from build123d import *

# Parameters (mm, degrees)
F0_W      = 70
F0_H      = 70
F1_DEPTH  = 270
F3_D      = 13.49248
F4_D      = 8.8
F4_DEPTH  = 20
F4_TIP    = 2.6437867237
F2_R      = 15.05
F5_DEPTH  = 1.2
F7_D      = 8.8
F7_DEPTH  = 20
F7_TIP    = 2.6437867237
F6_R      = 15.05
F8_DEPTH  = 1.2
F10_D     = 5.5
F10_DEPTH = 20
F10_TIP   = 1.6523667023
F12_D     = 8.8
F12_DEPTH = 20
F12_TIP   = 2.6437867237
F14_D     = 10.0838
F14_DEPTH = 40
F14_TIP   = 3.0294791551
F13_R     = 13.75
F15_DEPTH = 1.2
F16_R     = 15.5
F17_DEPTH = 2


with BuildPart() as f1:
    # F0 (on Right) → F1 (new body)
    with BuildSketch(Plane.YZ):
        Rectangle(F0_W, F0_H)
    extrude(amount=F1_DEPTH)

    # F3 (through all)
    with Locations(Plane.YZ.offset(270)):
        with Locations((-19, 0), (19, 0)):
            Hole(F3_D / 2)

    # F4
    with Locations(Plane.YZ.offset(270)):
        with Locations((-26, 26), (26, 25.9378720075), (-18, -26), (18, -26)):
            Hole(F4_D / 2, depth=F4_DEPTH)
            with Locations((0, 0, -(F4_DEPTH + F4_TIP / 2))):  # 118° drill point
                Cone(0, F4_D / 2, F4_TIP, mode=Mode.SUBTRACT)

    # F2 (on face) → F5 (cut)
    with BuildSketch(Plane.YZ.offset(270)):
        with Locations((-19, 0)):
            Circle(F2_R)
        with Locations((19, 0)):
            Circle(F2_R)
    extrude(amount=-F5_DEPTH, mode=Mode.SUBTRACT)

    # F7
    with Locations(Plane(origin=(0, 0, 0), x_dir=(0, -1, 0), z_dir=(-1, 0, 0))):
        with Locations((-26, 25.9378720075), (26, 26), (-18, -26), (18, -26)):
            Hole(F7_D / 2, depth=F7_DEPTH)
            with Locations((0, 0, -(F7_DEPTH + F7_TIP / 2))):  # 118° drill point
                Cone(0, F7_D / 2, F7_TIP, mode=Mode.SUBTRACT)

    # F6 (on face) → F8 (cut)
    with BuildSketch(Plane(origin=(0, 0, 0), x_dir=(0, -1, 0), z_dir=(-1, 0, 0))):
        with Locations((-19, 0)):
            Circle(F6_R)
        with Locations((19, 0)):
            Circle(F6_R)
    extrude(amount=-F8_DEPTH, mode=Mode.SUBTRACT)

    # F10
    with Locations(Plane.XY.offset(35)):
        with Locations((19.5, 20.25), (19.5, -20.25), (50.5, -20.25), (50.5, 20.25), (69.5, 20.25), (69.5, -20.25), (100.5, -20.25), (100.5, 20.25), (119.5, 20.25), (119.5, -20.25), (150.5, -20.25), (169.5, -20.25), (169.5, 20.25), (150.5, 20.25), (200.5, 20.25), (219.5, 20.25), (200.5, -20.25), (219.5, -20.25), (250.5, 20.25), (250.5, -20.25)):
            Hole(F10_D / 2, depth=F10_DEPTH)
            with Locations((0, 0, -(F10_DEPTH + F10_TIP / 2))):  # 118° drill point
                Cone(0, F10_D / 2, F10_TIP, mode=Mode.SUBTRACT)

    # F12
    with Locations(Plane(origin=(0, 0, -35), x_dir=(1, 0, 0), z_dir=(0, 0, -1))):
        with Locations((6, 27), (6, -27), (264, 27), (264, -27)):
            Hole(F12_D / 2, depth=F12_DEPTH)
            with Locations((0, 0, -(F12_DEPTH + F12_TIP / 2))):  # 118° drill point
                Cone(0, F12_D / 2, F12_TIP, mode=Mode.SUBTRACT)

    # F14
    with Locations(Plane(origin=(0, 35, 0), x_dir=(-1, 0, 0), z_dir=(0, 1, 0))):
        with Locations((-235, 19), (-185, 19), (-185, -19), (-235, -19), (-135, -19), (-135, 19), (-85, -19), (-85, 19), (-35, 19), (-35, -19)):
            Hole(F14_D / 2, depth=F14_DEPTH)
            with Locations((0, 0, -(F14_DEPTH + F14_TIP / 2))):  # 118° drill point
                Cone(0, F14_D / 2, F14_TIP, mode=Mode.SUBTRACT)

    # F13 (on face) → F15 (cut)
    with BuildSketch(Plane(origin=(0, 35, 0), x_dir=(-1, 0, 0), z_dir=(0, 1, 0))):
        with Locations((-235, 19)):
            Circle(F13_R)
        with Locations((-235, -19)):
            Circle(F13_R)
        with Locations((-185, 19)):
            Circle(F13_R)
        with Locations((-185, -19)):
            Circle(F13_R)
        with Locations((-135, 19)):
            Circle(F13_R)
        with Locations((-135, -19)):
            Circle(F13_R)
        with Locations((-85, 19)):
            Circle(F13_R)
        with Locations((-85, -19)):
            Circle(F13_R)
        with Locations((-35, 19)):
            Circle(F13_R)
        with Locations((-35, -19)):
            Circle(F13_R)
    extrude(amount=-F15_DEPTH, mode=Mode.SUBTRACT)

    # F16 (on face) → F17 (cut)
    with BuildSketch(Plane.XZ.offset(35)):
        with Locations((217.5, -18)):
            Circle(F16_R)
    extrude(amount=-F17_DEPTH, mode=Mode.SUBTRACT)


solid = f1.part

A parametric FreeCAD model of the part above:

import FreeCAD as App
import Part
import Sketcher

V = App.Vector
Q = App.Units.Quantity


def add_polygon(sketch, points):
    """Adds a closed chain of lines whose ends are joined by coincident constraints."""
    first, n = sketch.GeometryCount, len(points)
    for a, b in zip(points, points[1:] + points[:1]):
        sketch.addGeometry(Part.LineSegment(App.Vector(*a, 0), App.Vector(*b, 0)), False)
    for i in range(n):
        sketch.addConstraint(Sketcher.Constraint("Coincident", first + i, 2, first + (i + 1) % n, 1))

doc = App.newDocument("Part")
body = doc.addObject("PartDesign::Body", "Body")

# Sketch on YZ plane
sketch1 = doc.addObject("Sketcher::SketchObject", "Sketch")
body.addObject(sketch1)
sketch1.AttachmentSupport = (doc.YZ_Plane, [""])
sketch1.MapMode = "FlatFace"
add_polygon(sketch1, [(-35, 35), (-35, -35), (35, -35), (35, 35)])  # lines 0-3
sketch1.addConstraint([
    Sketcher.Constraint("Vertical", 0),
    Sketcher.Constraint("Horizontal", 1),
    Sketcher.Constraint("Vertical", 2),
    Sketcher.Constraint("Horizontal", 3),
    Sketcher.Constraint("Symmetric", 0, 2, 2, 2, -1, 1),
    Sketcher.Constraint("Equal", 3, 0),
    Sketcher.Constraint("DistanceX", 1, 1, 1, 2, Q("70 mm")),
])
pad1 = doc.addObject("PartDesign::Pad", "Pad")
body.addObject(pad1)
pad1.Profile = sketch1
pad1.Length = 270

# Sketch on YZ plane
sketch2 = doc.addObject("Sketcher::SketchObject", "Sketch001")
body.addObject(sketch2)
sketch2.AttachmentSupport = (doc.YZ_Plane, [""])
sketch2.MapMode = "FlatFace"
sketch2.AttachmentOffset = App.Placement(V(0, 0, 270), App.Rotation())
sketch2.addGeometry([
    Part.Circle(V(-19, 0, 0), V(0, 0, 1), 6.74624),
    Part.Circle(V(19, 0, 0), V(0, 0, 1), 6.74624),
], False)
sketch2.addConstraint([
    Sketcher.Constraint("Equal", 0, 1),
    Sketcher.Constraint("Symmetric", 0, 3, 1, 3, -1, 1),
    Sketcher.Constraint("PointOnObject", 0, 3, -1),
    Sketcher.Constraint("DistanceX", 0, 3, -1, 1, Q("19 mm")),
    Sketcher.Constraint("Diameter", 0, Q("13.49248 mm")),
])
doc.recompute()
hole = doc.addObject("PartDesign::Hole", "Hole")
body.addObject(hole)
hole.Profile = sketch2
hole.ThreadType = "None"
hole.Diameter = 13.49248
hole.DepthType = "ThroughAll"

# Sketch on YZ plane
sketch3 = doc.addObject("Sketcher::SketchObject", "Sketch002")
body.addObject(sketch3)
sketch3.AttachmentSupport = (doc.YZ_Plane, [""])
sketch3.MapMode = "FlatFace"
sketch3.AttachmentOffset = App.Placement(V(0, 0, 270), App.Rotation())
sketch3.addGeometry([
    Part.Circle(V(-26, 26, 0), V(0, 0, 1), 4.4),
    Part.Circle(V(26, 25.937872, 0), V(0, 0, 1), 4.4),
    Part.Circle(V(-18, -26, 0), V(0, 0, 1), 4.4),
    Part.Circle(V(18, -26, 0), V(0, 0, 1), 4.4),
], False)
sketch3.addConstraint([
    Sketcher.Constraint("Equal", 0, 1),
    Sketcher.Constraint("Equal", 1, 2),
    Sketcher.Constraint("Equal", 2, 3),
    Sketcher.Constraint("Symmetric", 2, 3, 3, 3, -2),
    Sketcher.Constraint("Diameter", 0, Q("8.8 mm")),
    Sketcher.Constraint("DistanceX", 0, 3, -1, 1, Q("26 mm")),
    Sketcher.Constraint("DistanceY", -1, 1, 0, 3, Q("26 mm")),
    Sketcher.Constraint("DistanceX", -1, 1, 1, 3, Q("26 mm")),
    Sketcher.Constraint("DistanceX", 2, 3, -1, 1, Q("18 mm")),
    Sketcher.Constraint("DistanceY", 2, 3, -1, 1, Q("26 mm")),
    Sketcher.Constraint("DistanceY", -1, 1, 1, 3, Q("25.937872 mm")),
])
doc.recompute()
hole2 = doc.addObject("PartDesign::Hole", "Hole001")
body.addObject(hole2)
hole2.Profile = sketch3
hole2.ThreadType = "None"
hole2.Diameter = 8.8
hole2.DepthType = "Dimension"
hole2.Depth = 20
hole2.DrillPoint = "Angled"
hole2.DrillPointAngle = 118

# Sketch on YZ plane
sketch4 = doc.addObject("Sketcher::SketchObject", "Sketch003")
body.addObject(sketch4)
sketch4.AttachmentSupport = (doc.YZ_Plane, [""])
sketch4.MapMode = "FlatFace"
sketch4.AttachmentOffset = App.Placement(V(0, 0, 270), App.Rotation())
sketch4.addGeometry([
    Part.Circle(V(-19, 0, 0), V(0, 0, 1), 15.05),
    Part.Circle(V(19, 0, 0), V(0, 0, 1), 15.05),
], False)
sketch4.addConstraint([
    Sketcher.Constraint("Equal", 0, 1),
    Sketcher.Constraint("Symmetric", 0, 3, 1, 3, -1, 1),
    Sketcher.Constraint("PointOnObject", 0, 3, -1),
    Sketcher.Constraint("Diameter", 0, Q("30.1 mm")),
    Sketcher.Constraint("DistanceX", 0, 3, -1, 1, Q("19 mm")),
])
pocket1 = doc.addObject("PartDesign::Pocket", "Pocket")
body.addObject(pocket1)
pocket1.Profile = sketch4
pocket1.Length = 1.2

# Sketch on YZ plane
sketch5 = doc.addObject("Sketcher::SketchObject", "Sketch004")
body.addObject(sketch5)
sketch5.AttachmentSupport = (doc.YZ_Plane, [""])
sketch5.MapMode = "FlatFace"
sketch5.addGeometry([
    Part.Circle(V(26, 25.937872, 0), V(0, 0, 1), 4.4),
    Part.Circle(V(-26, 26, 0), V(0, 0, 1), 4.4),
    Part.Circle(V(18, -26, 0), V(0, 0, 1), 4.4),
    Part.Circle(V(-18, -26, 0), V(0, 0, 1), 4.4),
], False)
sketch5.addConstraint([
    Sketcher.Constraint("Equal", 0, 1),
    Sketcher.Constraint("Equal", 1, 2),
    Sketcher.Constraint("Equal", 2, 3),
    Sketcher.Constraint("Symmetric", 2, 3, 3, 3, -2),
    Sketcher.Constraint("Diameter", 0, Q("8.8 mm")),
    Sketcher.Constraint("DistanceX", -1, 1, 0, 3, Q("26 mm")),
    Sketcher.Constraint("DistanceX", 1, 3, -1, 1, Q("26 mm")),
    Sketcher.Constraint("DistanceY", -1, 1, 1, 3, Q("26 mm")),
    Sketcher.Constraint("DistanceX", -1, 1, 2, 3, Q("18 mm")),
    Sketcher.Constraint("DistanceY", 2, 3, -1, 1, Q("26 mm")),
    Sketcher.Constraint("DistanceY", -1, 1, 0, 3, Q("25.937872 mm")),
])
doc.recompute()
hole3 = doc.addObject("PartDesign::Hole", "Hole002")
body.addObject(hole3)
hole3.Profile = sketch5
hole3.ThreadType = "None"
hole3.Diameter = 8.8
hole3.DepthType = "Dimension"
hole3.Depth = 20
hole3.DrillPoint = "Angled"
hole3.DrillPointAngle = 118
hole3.Reversed = True

# Sketch on YZ plane
sketch6 = doc.addObject("Sketcher::SketchObject", "Sketch005")
body.addObject(sketch6)
sketch6.AttachmentSupport = (doc.YZ_Plane, [""])
sketch6.MapMode = "FlatFace"
sketch6.addGeometry([
    Part.Circle(V(19, 0, 0), V(0, 0, 1), 15.05),
    Part.Circle(V(-19, 0, 0), V(0, 0, 1), 15.05),
], False)
sketch6.addConstraint([
    Sketcher.Constraint("Equal", 0, 1),
    Sketcher.Constraint("Symmetric", 0, 3, 1, 3, -1, 1),
    Sketcher.Constraint("PointOnObject", 0, 3, -1),
    Sketcher.Constraint("Diameter", 0, Q("30.1 mm")),
    Sketcher.Constraint("DistanceX", -1, 1, 0, 3, Q("19 mm")),
])
pocket2 = doc.addObject("PartDesign::Pocket", "Pocket001")
body.addObject(pocket2)
pocket2.Profile = sketch6
pocket2.Length = 1.2
pocket2.Reversed = True

# Sketch on XY plane
sketch7 = doc.addObject("Sketcher::SketchObject", "Sketch006")
body.addObject(sketch7)
sketch7.AttachmentSupport = (doc.XY_Plane, [""])
sketch7.MapMode = "FlatFace"
sketch7.AttachmentOffset = App.Placement(V(0, 0, 35), App.Rotation())
sketch7.addGeometry([
    Part.Circle(V(19.5, 20.25, 0), V(0, 0, 1), 2.75),  # 0
    Part.Circle(V(19.5, -20.25, 0), V(0, 0, 1), 2.75),  # 1
    Part.Circle(V(50.5, -20.25, 0), V(0, 0, 1), 2.75),  # 2
    Part.Circle(V(50.5, 20.25, 0), V(0, 0, 1), 2.75),  # 3
    Part.Circle(V(69.5, 20.25, 0), V(0, 0, 1), 2.75),  # 4
    Part.Circle(V(69.5, -20.25, 0), V(0, 0, 1), 2.75),  # 5
    Part.Circle(V(100.5, -20.25, 0), V(0, 0, 1), 2.75),  # 6
    Part.Circle(V(100.5, 20.25, 0), V(0, 0, 1), 2.75),  # 7
    Part.Circle(V(119.5, 20.25, 0), V(0, 0, 1), 2.75),  # 8
    Part.Circle(V(119.5, -20.25, 0), V(0, 0, 1), 2.75),  # 9
    Part.Circle(V(150.5, -20.25, 0), V(0, 0, 1), 2.75),  # 10
    Part.Circle(V(169.5, -20.25, 0), V(0, 0, 1), 2.75),  # 11
    Part.Circle(V(169.5, 20.25, 0), V(0, 0, 1), 2.75),  # 12
    Part.Circle(V(150.5, 20.25, 0), V(0, 0, 1), 2.75),  # 13
    Part.Circle(V(200.5, 20.25, 0), V(0, 0, 1), 2.75),  # 14
    Part.Circle(V(219.5, 20.25, 0), V(0, 0, 1), 2.75),  # 15
    Part.Circle(V(200.5, -20.25, 0), V(0, 0, 1), 2.75),  # 16
    Part.Circle(V(219.5, -20.25, 0), V(0, 0, 1), 2.75),  # 17
    Part.Circle(V(250.5, 20.25, 0), V(0, 0, 1), 2.75),  # 18
    Part.Circle(V(250.5, -20.25, 0), V(0, 0, 1), 2.75),  # 19
], False)
sketch7.addConstraint([
    Sketcher.Constraint("Equal", 0, 1),
    Sketcher.Constraint("Equal", 1, 2),
    Sketcher.Constraint("Equal", 2, 3),
    Sketcher.Constraint("Equal", 3, 4),
    Sketcher.Constraint("Equal", 4, 5),
    Sketcher.Constraint("Equal", 5, 6),
    Sketcher.Constraint("Equal", 6, 7),
    Sketcher.Constraint("Equal", 7, 8),
    Sketcher.Constraint("Equal", 8, 9),
    Sketcher.Constraint("Equal", 9, 10),
    Sketcher.Constraint("Equal", 10, 11),
    Sketcher.Constraint("Equal", 11, 12),
    Sketcher.Constraint("Equal", 12, 13),
    Sketcher.Constraint("Equal", 13, 14),
    Sketcher.Constraint("Equal", 14, 15),
    Sketcher.Constraint("Equal", 15, 16),
    Sketcher.Constraint("Equal", 16, 17),
    Sketcher.Constraint("Equal", 17, 18),
    Sketcher.Constraint("Equal", 18, 19),
    Sketcher.Constraint("Symmetric", 0, 3, 1, 3, -1),
    Sketcher.Constraint("Symmetric", 2, 3, 3, 3, -1),
    Sketcher.Constraint("Symmetric", 4, 3, 5, 3, -1),
    Sketcher.Constraint("Symmetric", 6, 3, 7, 3, -1),
    Sketcher.Constraint("Symmetric", 8, 3, 9, 3, -1),
    Sketcher.Constraint("Symmetric", 11, 3, 12, 3, -1),
    Sketcher.Constraint("Symmetric", 10, 3, 13, 3, -1),
    Sketcher.Constraint("Symmetric", 14, 3, 16, 3, -1),
    Sketcher.Constraint("Symmetric", 15, 3, 17, 3, -1),
    Sketcher.Constraint("Symmetric", 18, 3, 19, 3, -1),
    Sketcher.Constraint("Horizontal", 1, 3, 2, 3),
    Sketcher.Constraint("Horizontal", 3, 3, 4, 3),
    Sketcher.Constraint("Horizontal", 5, 3, 6, 3),
    Sketcher.Constraint("Horizontal", 7, 3, 8, 3),
    Sketcher.Constraint("Horizontal", 9, 3, 10, 3),
    Sketcher.Constraint("Horizontal", 10, 3, 11, 3),
    Sketcher.Constraint("Horizontal", 13, 3, 14, 3),
    Sketcher.Constraint("Horizontal", 14, 3, 15, 3),
    Sketcher.Constraint("Horizontal", 15, 3, 18, 3),
    Sketcher.Constraint("Diameter", 0, Q("5.5 mm")),
    Sketcher.Constraint("DistanceX", 1, 3, 2, 3, Q("31 mm")),
    Sketcher.Constraint("DistanceX", 3, 3, 4, 3, Q("19 mm")),
    Sketcher.Constraint("DistanceX", 5, 3, 6, 3, Q("31 mm")),
    Sketcher.Constraint("DistanceX", 7, 3, 8, 3, Q("19 mm")),
    Sketcher.Constraint("DistanceX", 9, 3, 10, 3, Q("31 mm")),
    Sketcher.Constraint("DistanceX", 10, 3, 11, 3, Q("19 mm")),
    Sketcher.Constraint("DistanceX", 12, 3, 14, 3, Q("31 mm")),
    Sketcher.Constraint("DistanceX", 14, 3, 15, 3, Q("19 mm")),
    Sketcher.Constraint("DistanceX", 15, 3, 18, 3, Q("31 mm")),
    Sketcher.Constraint("DistanceX", -1, 1, 0, 3, Q("19.5 mm")),
    Sketcher.Constraint("DistanceY", 1, 3, 0, 3, Q("40.5 mm")),
])
doc.recompute()
hole4 = doc.addObject("PartDesign::Hole", "Hole003")
body.addObject(hole4)
hole4.Profile = sketch7
hole4.ThreadType = "None"
hole4.Diameter = 5.5
hole4.DepthType = "Dimension"
hole4.Depth = 20
hole4.DrillPoint = "Angled"
hole4.DrillPointAngle = 118

# Sketch on XY plane
sketch8 = doc.addObject("Sketcher::SketchObject", "Sketch007")
body.addObject(sketch8)
sketch8.AttachmentSupport = (doc.XY_Plane, [""])
sketch8.MapMode = "FlatFace"
sketch8.AttachmentOffset = App.Placement(V(0, 0, -35), App.Rotation())
sketch8.addGeometry([
    Part.Circle(V(6, -27, 0), V(0, 0, 1), 4.4),
    Part.Circle(V(6, 27, 0), V(0, 0, 1), 4.4),
    Part.Circle(V(264, -27, 0), V(0, 0, 1), 4.4),
    Part.Circle(V(264, 27, 0), V(0, 0, 1), 4.4),
], False)
sketch8.addConstraint([
    Sketcher.Constraint("Equal", 0, 1),
    Sketcher.Constraint("Equal", 1, 2),
    Sketcher.Constraint("Equal", 2, 3),
    Sketcher.Constraint("Symmetric", 0, 3, 1, 3, -1),
    Sketcher.Constraint("Symmetric", 2, 3, 3, 3, -1),
    Sketcher.Constraint("Horizontal", 0, 3, 2, 3),
    Sketcher.Constraint("Diameter", 0, Q("8.8 mm")),
    Sketcher.Constraint("DistanceX", -1, 1, 0, 3, Q("6 mm")),
    Sketcher.Constraint("DistanceY", 0, 3, -1, 1, Q("27 mm")),
    Sketcher.Constraint("DistanceX", -1, 1, 2, 3, Q("264 mm")),
])
doc.recompute()
hole5 = doc.addObject("PartDesign::Hole", "Hole004")
body.addObject(hole5)
hole5.Profile = sketch8
hole5.ThreadType = "None"
hole5.Diameter = 8.8
hole5.DepthType = "Dimension"
hole5.Depth = 20
hole5.DrillPoint = "Angled"
hole5.DrillPointAngle = 118
hole5.Reversed = True

# Sketch on XZ plane
sketch9 = doc.addObject("Sketcher::SketchObject", "Sketch008")
body.addObject(sketch9)
sketch9.AttachmentSupport = (doc.XZ_Plane, [""])
sketch9.MapMode = "FlatFace"
sketch9.AttachmentOffset = App.Placement(V(0, 0, -35), App.Rotation())
sketch9.addGeometry([
    Part.Circle(V(235, 19, 0), V(0, 0, 1), 5.0419),  # 0
    Part.Circle(V(185, 19, 0), V(0, 0, 1), 5.0419),  # 1
    Part.Circle(V(185, -19, 0), V(0, 0, 1), 5.0419),  # 2
    Part.Circle(V(235, -19, 0), V(0, 0, 1), 5.0419),  # 3
    Part.Circle(V(135, -19, 0), V(0, 0, 1), 5.0419),  # 4
    Part.Circle(V(135, 19, 0), V(0, 0, 1), 5.0419),  # 5
    Part.Circle(V(85, -19, 0), V(0, 0, 1), 5.0419),  # 6
    Part.Circle(V(85, 19, 0), V(0, 0, 1), 5.0419),  # 7
    Part.Circle(V(35, 19, 0), V(0, 0, 1), 5.0419),  # 8
    Part.Circle(V(35, -19, 0), V(0, 0, 1), 5.0419),  # 9
], False)
sketch9.addConstraint([
    Sketcher.Constraint("Equal", 0, 1),
    Sketcher.Constraint("Equal", 1, 2),
    Sketcher.Constraint("Equal", 2, 3),
    Sketcher.Constraint("Equal", 3, 4),
    Sketcher.Constraint("Equal", 4, 5),
    Sketcher.Constraint("Equal", 5, 6),
    Sketcher.Constraint("Equal", 6, 7),
    Sketcher.Constraint("Equal", 7, 8),
    Sketcher.Constraint("Equal", 8, 9),
    Sketcher.Constraint("Symmetric", 1, 3, 2, 3, -1),
    Sketcher.Constraint("Symmetric", 0, 3, 3, 3, -1),
    Sketcher.Constraint("Symmetric", 4, 3, 5, 3, -1),
    Sketcher.Constraint("Symmetric", 6, 3, 7, 3, -1),
    Sketcher.Constraint("Symmetric", 8, 3, 9, 3, -1),
    Sketcher.Constraint("Horizontal", 0, 3, 1, 3),
    Sketcher.Constraint("Horizontal", 3, 3, 4, 3),
    Sketcher.Constraint("Horizontal", 4, 3, 6, 3),
    Sketcher.Constraint("Horizontal", 7, 3, 8, 3),
    Sketcher.Constraint("DistanceX", -1, 1, 0, 3, Q("235 mm")),
    Sketcher.Constraint("DistanceY", -1, 1, 0, 3, Q("19 mm")),
    Sketcher.Constraint("DistanceX", -1, 1, 1, 3, Q("185 mm")),
    Sketcher.Constraint("DistanceX", -1, 1, 4, 3, Q("135 mm")),
    Sketcher.Constraint("DistanceX", -1, 1, 6, 3, Q("85 mm")),
    Sketcher.Constraint("DistanceX", -1, 1, 8, 3, Q("35 mm")),
    Sketcher.Constraint("Diameter", 0, Q("10.0838 mm")),
])
doc.recompute()
hole6 = doc.addObject("PartDesign::Hole", "Hole005")
body.addObject(hole6)
hole6.Profile = sketch9
hole6.ThreadType = "None"
hole6.Diameter = 10.0838
hole6.DepthType = "Dimension"
hole6.Depth = 40
hole6.DrillPoint = "Angled"
hole6.DrillPointAngle = 118
hole6.Reversed = True

# Sketch on XZ plane
sketch10 = doc.addObject("Sketcher::SketchObject", "Sketch009")
body.addObject(sketch10)
sketch10.AttachmentSupport = (doc.XZ_Plane, [""])
sketch10.MapMode = "FlatFace"
sketch10.AttachmentOffset = App.Placement(V(0, 0, -35), App.Rotation())
sketch10.addGeometry([
    Part.Circle(V(235, 19, 0), V(0, 0, 1), 13.75),  # 0
    Part.Circle(V(235, -19, 0), V(0, 0, 1), 13.75),  # 1
    Part.Circle(V(185, 19, 0), V(0, 0, 1), 13.75),  # 2
    Part.Circle(V(185, -19, 0), V(0, 0, 1), 13.75),  # 3
    Part.Circle(V(135, 19, 0), V(0, 0, 1), 13.75),  # 4
    Part.Circle(V(135, -19, 0), V(0, 0, 1), 13.75),  # 5
    Part.Circle(V(85, 19, 0), V(0, 0, 1), 13.75),  # 6
    Part.Circle(V(85, -19, 0), V(0, 0, 1), 13.75),  # 7
    Part.Circle(V(35, 19, 0), V(0, 0, 1), 13.75),  # 8
    Part.Circle(V(35, -19, 0), V(0, 0, 1), 13.75),  # 9
], False)
sketch10.addConstraint([
    Sketcher.Constraint("Equal", 0, 1),
    Sketcher.Constraint("Equal", 1, 2),
    Sketcher.Constraint("Equal", 2, 3),
    Sketcher.Constraint("Equal", 3, 4),
    Sketcher.Constraint("Equal", 4, 5),
    Sketcher.Constraint("Equal", 5, 6),
    Sketcher.Constraint("Equal", 6, 7),
    Sketcher.Constraint("Equal", 7, 8),
    Sketcher.Constraint("Equal", 8, 9),
    Sketcher.Constraint("Symmetric", 0, 3, 1, 3, -1),
    Sketcher.Constraint("Symmetric", 2, 3, 3, 3, -1),
    Sketcher.Constraint("Symmetric", 4, 3, 5, 3, -1),
    Sketcher.Constraint("Symmetric", 6, 3, 7, 3, -1),
    Sketcher.Constraint("Symmetric", 8, 3, 9, 3, -1),
    Sketcher.Constraint("Horizontal", 0, 3, 2, 3),
    Sketcher.Constraint("Horizontal", 2, 3, 4, 3),
    Sketcher.Constraint("Horizontal", 4, 3, 6, 3),
    Sketcher.Constraint("Horizontal", 6, 3, 8, 3),
    Sketcher.Constraint("Diameter", 0, Q("27.5 mm")),
    Sketcher.Constraint("DistanceX", -1, 1, 0, 3, Q("235 mm")),
    Sketcher.Constraint("DistanceY", -1, 1, 0, 3, Q("19 mm")),
    Sketcher.Constraint("DistanceX", -1, 1, 2, 3, Q("185 mm")),
    Sketcher.Constraint("DistanceX", -1, 1, 4, 3, Q("135 mm")),
    Sketcher.Constraint("DistanceX", -1, 1, 6, 3, Q("85 mm")),
    Sketcher.Constraint("DistanceX", -1, 1, 8, 3, Q("35 mm")),
])
pocket3 = doc.addObject("PartDesign::Pocket", "Pocket002")
body.addObject(pocket3)
pocket3.Profile = sketch10
pocket3.Length = 1.2
pocket3.Reversed = True

# Sketch on XZ plane
sketch11 = doc.addObject("Sketcher::SketchObject", "Sketch010")
body.addObject(sketch11)
sketch11.AttachmentSupport = (doc.XZ_Plane, [""])
sketch11.MapMode = "FlatFace"
sketch11.AttachmentOffset = App.Placement(V(0, 0, 35), App.Rotation())
sketch11.addGeometry(Part.Circle(V(217.5, -18, 0), V(0, 0, 1), 15.5), False)
sketch11.addConstraint([
    Sketcher.Constraint("Diameter", 0, Q("31 mm")),
    Sketcher.Constraint("DistanceY", 0, 3, -1, 1, Q("18 mm")),
    Sketcher.Constraint("DistanceX", -1, 1, 0, 3, Q("217.5 mm")),
])
pocket4 = doc.addObject("PartDesign::Pocket", "Pocket003")
body.addObject(pocket4)
pocket4.Profile = sketch11
pocket4.Length = 2

doc.recompute()
